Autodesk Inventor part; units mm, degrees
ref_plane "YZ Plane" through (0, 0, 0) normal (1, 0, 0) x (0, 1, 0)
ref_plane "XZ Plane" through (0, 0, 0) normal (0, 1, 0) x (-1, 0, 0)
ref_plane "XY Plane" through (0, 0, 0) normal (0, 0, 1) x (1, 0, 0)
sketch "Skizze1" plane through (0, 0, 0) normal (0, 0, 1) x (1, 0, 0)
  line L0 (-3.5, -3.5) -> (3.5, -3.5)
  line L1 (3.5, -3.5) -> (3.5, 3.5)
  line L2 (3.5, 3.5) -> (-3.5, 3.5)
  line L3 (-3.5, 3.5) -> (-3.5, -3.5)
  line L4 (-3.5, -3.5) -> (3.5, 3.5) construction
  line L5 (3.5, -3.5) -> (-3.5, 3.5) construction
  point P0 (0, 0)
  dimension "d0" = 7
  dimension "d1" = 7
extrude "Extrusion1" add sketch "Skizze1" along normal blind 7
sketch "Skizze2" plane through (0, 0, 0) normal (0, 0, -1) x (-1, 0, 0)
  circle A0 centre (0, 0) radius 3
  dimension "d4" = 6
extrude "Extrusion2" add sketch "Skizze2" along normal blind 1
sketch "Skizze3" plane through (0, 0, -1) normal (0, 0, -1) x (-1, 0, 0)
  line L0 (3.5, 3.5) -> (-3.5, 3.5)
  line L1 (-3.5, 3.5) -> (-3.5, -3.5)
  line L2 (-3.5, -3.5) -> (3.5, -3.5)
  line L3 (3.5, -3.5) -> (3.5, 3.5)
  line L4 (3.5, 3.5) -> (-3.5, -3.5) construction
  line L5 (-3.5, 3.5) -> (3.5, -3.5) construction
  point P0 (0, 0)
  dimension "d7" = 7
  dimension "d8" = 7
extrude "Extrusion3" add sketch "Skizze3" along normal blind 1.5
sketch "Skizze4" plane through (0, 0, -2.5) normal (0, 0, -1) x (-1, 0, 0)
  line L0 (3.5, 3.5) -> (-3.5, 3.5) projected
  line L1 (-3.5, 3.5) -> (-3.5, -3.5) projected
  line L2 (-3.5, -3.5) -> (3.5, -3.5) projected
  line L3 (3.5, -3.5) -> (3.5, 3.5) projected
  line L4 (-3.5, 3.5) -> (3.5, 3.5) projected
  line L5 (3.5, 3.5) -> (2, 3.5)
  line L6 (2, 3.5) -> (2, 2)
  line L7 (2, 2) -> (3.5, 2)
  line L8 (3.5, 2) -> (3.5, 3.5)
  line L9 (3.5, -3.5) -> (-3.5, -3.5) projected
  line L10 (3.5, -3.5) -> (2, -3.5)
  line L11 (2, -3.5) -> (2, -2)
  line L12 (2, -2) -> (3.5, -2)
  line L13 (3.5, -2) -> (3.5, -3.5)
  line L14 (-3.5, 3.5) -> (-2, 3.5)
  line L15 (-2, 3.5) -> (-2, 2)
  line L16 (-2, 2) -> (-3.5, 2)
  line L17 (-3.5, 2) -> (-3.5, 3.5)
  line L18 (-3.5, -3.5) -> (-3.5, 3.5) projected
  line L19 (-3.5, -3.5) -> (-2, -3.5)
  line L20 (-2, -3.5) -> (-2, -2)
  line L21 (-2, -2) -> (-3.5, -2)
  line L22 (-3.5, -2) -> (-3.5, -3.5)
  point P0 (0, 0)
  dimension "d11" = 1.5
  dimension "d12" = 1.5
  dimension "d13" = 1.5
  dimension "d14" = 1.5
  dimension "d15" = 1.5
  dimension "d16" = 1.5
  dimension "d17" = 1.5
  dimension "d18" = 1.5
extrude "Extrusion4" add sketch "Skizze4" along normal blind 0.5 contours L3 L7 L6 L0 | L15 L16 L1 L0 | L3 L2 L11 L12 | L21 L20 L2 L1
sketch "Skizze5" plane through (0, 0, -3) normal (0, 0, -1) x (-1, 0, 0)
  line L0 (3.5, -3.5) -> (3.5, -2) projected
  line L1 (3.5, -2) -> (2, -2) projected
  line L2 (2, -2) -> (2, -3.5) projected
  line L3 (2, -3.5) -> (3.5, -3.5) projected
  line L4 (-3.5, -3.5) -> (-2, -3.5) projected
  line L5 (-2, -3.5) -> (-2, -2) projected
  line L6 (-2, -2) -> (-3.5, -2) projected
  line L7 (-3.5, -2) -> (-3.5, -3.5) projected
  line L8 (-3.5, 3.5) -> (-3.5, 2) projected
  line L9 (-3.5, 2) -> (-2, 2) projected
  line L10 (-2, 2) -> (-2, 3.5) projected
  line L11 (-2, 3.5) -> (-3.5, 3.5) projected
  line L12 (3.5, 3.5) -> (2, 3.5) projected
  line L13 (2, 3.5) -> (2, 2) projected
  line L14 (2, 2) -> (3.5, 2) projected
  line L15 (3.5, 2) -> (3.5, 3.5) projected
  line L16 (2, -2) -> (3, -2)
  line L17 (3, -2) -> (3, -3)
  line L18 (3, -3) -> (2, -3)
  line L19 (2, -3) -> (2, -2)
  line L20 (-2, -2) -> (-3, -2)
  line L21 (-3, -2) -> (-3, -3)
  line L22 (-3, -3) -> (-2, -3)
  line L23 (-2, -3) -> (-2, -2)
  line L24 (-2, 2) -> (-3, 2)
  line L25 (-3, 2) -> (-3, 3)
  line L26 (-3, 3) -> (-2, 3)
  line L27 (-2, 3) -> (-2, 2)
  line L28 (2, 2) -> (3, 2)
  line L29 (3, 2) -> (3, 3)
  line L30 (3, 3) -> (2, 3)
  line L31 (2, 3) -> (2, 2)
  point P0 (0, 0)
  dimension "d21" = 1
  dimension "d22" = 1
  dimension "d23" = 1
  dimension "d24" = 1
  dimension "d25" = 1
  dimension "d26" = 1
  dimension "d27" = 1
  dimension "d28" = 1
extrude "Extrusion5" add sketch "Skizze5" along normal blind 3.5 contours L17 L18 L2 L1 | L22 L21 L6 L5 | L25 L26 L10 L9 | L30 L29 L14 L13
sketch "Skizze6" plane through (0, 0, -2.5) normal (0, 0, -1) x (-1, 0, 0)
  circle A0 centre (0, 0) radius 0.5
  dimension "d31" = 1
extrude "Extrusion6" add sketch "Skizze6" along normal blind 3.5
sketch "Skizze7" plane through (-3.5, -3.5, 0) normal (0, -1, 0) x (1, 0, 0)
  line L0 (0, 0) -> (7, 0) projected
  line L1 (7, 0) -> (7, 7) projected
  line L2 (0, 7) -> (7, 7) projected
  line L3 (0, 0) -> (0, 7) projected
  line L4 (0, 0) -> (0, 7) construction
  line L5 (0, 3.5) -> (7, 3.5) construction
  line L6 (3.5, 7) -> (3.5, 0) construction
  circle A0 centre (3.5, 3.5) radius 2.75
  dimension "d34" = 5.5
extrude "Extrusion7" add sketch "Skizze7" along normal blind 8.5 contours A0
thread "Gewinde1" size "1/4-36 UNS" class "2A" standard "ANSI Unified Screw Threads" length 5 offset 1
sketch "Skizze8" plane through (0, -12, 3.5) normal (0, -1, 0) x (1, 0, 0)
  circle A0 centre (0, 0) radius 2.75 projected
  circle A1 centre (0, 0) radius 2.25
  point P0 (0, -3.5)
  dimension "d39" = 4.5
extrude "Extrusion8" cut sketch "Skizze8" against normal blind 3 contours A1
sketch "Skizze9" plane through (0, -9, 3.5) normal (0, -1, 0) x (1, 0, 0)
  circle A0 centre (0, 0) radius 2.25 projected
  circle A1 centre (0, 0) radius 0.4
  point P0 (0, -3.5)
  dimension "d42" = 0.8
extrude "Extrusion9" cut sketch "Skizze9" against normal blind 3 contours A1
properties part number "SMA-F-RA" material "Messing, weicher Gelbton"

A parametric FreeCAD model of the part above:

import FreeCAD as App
import Part
import Sketcher
from FreeCAD import Vector


def add_polygon(sketch, points):
    """Adds a closed chain of lines whose ends are joined by coincident constraints."""
    first, n = sketch.GeometryCount, len(points)
    for a, b in zip(points, points[1:] + points[:1]):
        sketch.addGeometry(Part.LineSegment(App.Vector(*a, 0), App.Vector(*b, 0)), False)
    for i in range(n):
        sketch.addConstraint(Sketcher.Constraint("Coincident", first + i, 2, first + (i + 1) % n, 1))

doc = App.newDocument("Part")
params = doc.addObject("Spreadsheet::Sheet", "Params")
for row, (alias, value) in enumerate([
    ("sketch1_width", "7 mm"),
    ("pad1_length", "7 mm"),
    ("sketch2_diameter", "6 mm"),
    ("pad2_length", "1 mm"),
    ("sketch3_width", "7 mm"),
    ("pad3_length", "1.5 mm"),
    ("sketch4_width", "1.5 mm"),
    ("pad4_length", "0.5 mm"),
    ("sketch5_width", "1 mm"),
    ("pad5_length", "3.5 mm"),
    ("sketch6_diameter", "1 mm"),
    ("pad6_length", "3.5 mm"),
    ("sketch7_diameter", "5.5 mm"),
    ("pad7_length", "8.5 mm"),
    ("sketch8_diameter", "4.5 mm"),
    ("pocket1_length", "3 mm"),
    ("sketch9_diameter", "0.8 mm"),
    ("pocket2_length", "3 mm"),
], start=1):
    params.set(f"A{row}", alias)
    params.set(f"B{row}", "=" + value)
    params.setAlias(f"B{row}", alias)

body = doc.addObject("PartDesign::Body", "Body")

# Sketch on XY plane
sketch1 = body.newObject("Sketcher::SketchObject", "Sketch")
sketch1.AttachmentSupport = (doc.getObject("XY_Plane"), [""])
sketch1.MapMode = "FlatFace"
add_polygon(sketch1, [(-4, 4), (-4, -4), (4, -4), (4, 4)])  # lines 0-3
sketch1.addConstraint([
    Sketcher.Constraint("Vertical", 0),
    Sketcher.Constraint("Horizontal", 1),
    Sketcher.Constraint("Vertical", 2),
    Sketcher.Constraint("Horizontal", 3),
    Sketcher.Constraint("Symmetric", 0, 2, 2, 2, -1, 1),
    Sketcher.Constraint("Equal", 3, 0),
    Sketcher.Constraint("DistanceX", 1, 1, 1, 2, 7.0),
])
sketch1.setExpression("Constraints[10]", "Params.sketch1_width")
pad1 = body.newObject("PartDesign::Pad", "Pad")
pad1.Profile = sketch1
pad1.setExpression("Length", "Params.pad1_length")

# Sketch on XY plane
sketch2 = body.newObject("Sketcher::SketchObject", "Sketch001")
sketch2.AttachmentSupport = (doc.getObject("XY_Plane"), [""])
sketch2.MapMode = "FlatFace"
sketch2.addGeometry(Part.Circle(Vector(0, 0, 0), Vector(0, 0, 1), 3), False)
sketch2.addConstraint([
    Sketcher.Constraint("Coincident", 0, 3, -1, 1),
    Sketcher.Constraint("Diameter", 0, 6.0),
])
sketch2.setExpression("Constraints[1]", "Params.sketch2_diameter")
pad2 = body.newObject("PartDesign::Pad", "Pad001")
pad2.Profile = sketch2
pad2.setExpression("Length", "Params.pad2_length")
pad2.Reversed = True

# Sketch on XY plane
sketch3 = body.newObject("Sketcher::SketchObject", "Sketch002")
sketch3.AttachmentSupport = (doc.getObject("XY_Plane"), [""])
sketch3.MapMode = "FlatFace"
sketch3.AttachmentOffset = App.Placement(Vector(0, 0, -1), App.Rotation())
add_polygon(sketch3, [(-4, -4), (-4, 4), (4, 4), (4, -4)])  # lines 0-3
sketch3.addConstraint([
    Sketcher.Constraint("Vertical", 0),
    Sketcher.Constraint("Horizontal", 1),
    Sketcher.Constraint("Vertical", 2),
    Sketcher.Constraint("Horizontal", 3),
    Sketcher.Constraint("Symmetric", 0, 2, 2, 2, -1, 1),
    Sketcher.Constraint("Equal", 3, 0),
    Sketcher.Constraint("DistanceX", 1, 1, 1, 2, 7.0),
])
sketch3.setExpression("Constraints[10]", "Params.sketch3_width")
pad3 = body.newObject("PartDesign::Pad", "Pad002")
pad3.Profile = sketch3
pad3.setExpression("Length", "Params.pad3_length")
pad3.Reversed = True

# Sketch on XY plane
sketch4 = body.newObject("Sketcher::SketchObject", "Sketch003")
sketch4.AttachmentSupport = (doc.getObject("XY_Plane"), [""])
sketch4.MapMode = "FlatFace"
sketch4.AttachmentOffset = App.Placement(Vector(0, 0, -2.5), App.Rotation())
add_polygon(sketch4, [(-3.5, 2), (-3.5, 3.5), (-2, 3.5), (-2, 2)])  # lines 0-3
add_polygon(sketch4, [(2, 2), (2, 3.5), (3.5, 3.5), (3.5, 2)])  # lines 4-7
add_polygon(sketch4, [(-3.5, -3.5), (-3.5, -2), (-2, -2), (-2, -3.5)])  # lines 8-11
add_polygon(sketch4, [(2, -2), (3.5, -2), (3.5, -3.5), (2, -3.5)])  # lines 12-15
sketch4.addConstraint([
    Sketcher.Constraint("Vertical", 0),
    Sketcher.Constraint("Horizontal", 1),
    Sketcher.Constraint("Vertical", 2),
    Sketcher.Constraint("Horizontal", 3),
    Sketcher.Constraint("Vertical", 4),
    Sketcher.Constraint("Horizontal", 5),
    Sketcher.Constraint("Vertical", 6),
    Sketcher.Constraint("Horizontal", 7),
    Sketcher.Constraint("Vertical", 8),
    Sketcher.Constraint("Horizontal", 9),
    Sketcher.Constraint("Vertical", 10),
    Sketcher.Constraint("Horizontal", 11),
    Sketcher.Constraint("Horizontal", 12),
    Sketcher.Constraint("Vertical", 13),
    Sketcher.Constraint("Horizontal", 14),
    Sketcher.Constraint("Vertical", 15),
    Sketcher.Constraint("Symmetric", 6, 2, 8, 2, -1, 1),
    Sketcher.Constraint("Symmetric", 4, 2, 10, 2, -1, 1),
    Sketcher.Constraint("Symmetric", 3, 2, 12, 2, -1, 1),
    Sketcher.Constraint("Symmetric", 1, 2, 14, 2, -1, 1),
    Sketcher.Constraint("Symmetric", 1, 2, 4, 2, -2),
    Sketcher.Constraint("Symmetric", 3, 2, 6, 2, -2),
    Sketcher.Constraint("Equal", 14, 0),
    Sketcher.Constraint("DistanceX", 1, 1, 1, 2, 1.5),
    Sketcher.Constraint("DistanceX", 1, 2, -1, 1, 2.0),
    Sketcher.Constraint("DistanceY", -1, 1, 2, 2, 2.0),
])
sketch4.setExpression("Constraints[39]", "Params.sketch4_width")
pad4 = body.newObject("PartDesign::Pad", "Pad003")
pad4.Profile = sketch4
pad4.setExpression("Length", "Params.pad4_length")
pad4.Reversed = True

# Sketch on XY plane
sketch5 = body.newObject("Sketcher::SketchObject", "Sketch004")
sketch5.AttachmentSupport = (doc.getObject("XY_Plane"), [""])
sketch5.MapMode = "FlatFace"
sketch5.AttachmentOffset = App.Placement(Vector(0, 0, -3), App.Rotation())
add_polygon(sketch5, [(-3, -3), (-3, -2), (-2, -2), (-2, -3)])  # lines 0-3
add_polygon(sketch5, [(3, -3), (2, -3), (2, -2), (3, -2)])  # lines 4-7
add_polygon(sketch5, [(3, 3), (3, 2), (2, 2), (2, 3)])  # lines 8-11
add_polygon(sketch5, [(-3, 3), (-2, 3), (-2, 2), (-3, 2)])  # lines 12-15
sketch5.addConstraint([
    Sketcher.Constraint("Vertical", 0),
    Sketcher.Constraint("Horizontal", 1),
    Sketcher.Constraint("Vertical", 2),
    Sketcher.Constraint("Horizontal", 3),
    Sketcher.Constraint("Horizontal", 4),
    Sketcher.Constraint("Vertical", 5),
    Sketcher.Constraint("Horizontal", 6),
    Sketcher.Constraint("Vertical", 7),
    Sketcher.Constraint("Vertical", 8),
    Sketcher.Constraint("Horizontal", 9),
    Sketcher.Constraint("Vertical", 10),
    Sketcher.Constraint("Horizontal", 11),
    Sketcher.Constraint("Horizontal", 12),
    Sketcher.Constraint("Vertical", 13),
    Sketcher.Constraint("Horizontal", 14),
    Sketcher.Constraint("Vertical", 15),
    Sketcher.Constraint("Symmetric", 0, 2, 8, 2, -1, 1),
    Sketcher.Constraint("Symmetric", 2, 2, 10, 2, -1, 1),
    Sketcher.Constraint("Symmetric", 4, 2, 12, 2, -1, 1),
    Sketcher.Constraint("Symmetric", 6, 2, 14, 2, -1, 1),
    Sketcher.Constraint("Symmetric", 2, 2, 4, 2, -2),
    Sketcher.Constraint("Symmetric", 0, 2, 6, 2, -2),
    Sketcher.Constraint("Equal", 14, 0),
    Sketcher.Constraint("DistanceX", 1, 1, 1, 2, 1.0),
    Sketcher.Constraint("DistanceX", 0, 2, -1, 1, 3.0),
    Sketcher.Constraint("DistanceY", 0, 2, -1, 1, 2.0),
])
sketch5.setExpression("Constraints[39]", "Params.sketch5_width")
pad5 = body.newObject("PartDesign::Pad", "Pad004")
pad5.Profile = sketch5
pad5.setExpression("Length", "Params.pad5_length")
pad5.Reversed = True

# Sketch on XY plane
sketch6 = body.newObject("Sketcher::SketchObject", "Sketch005")
sketch6.AttachmentSupport = (doc.getObject("XY_Plane"), [""])
sketch6.MapMode = "FlatFace"
sketch6.AttachmentOffset = App.Placement(Vector(0, 0, -2.5), App.Rotation())
sketch6.addGeometry(Part.Circle(Vector(0, 0, 0), Vector(0, 0, 1), 0.5), False)
sketch6.addConstraint([
    Sketcher.Constraint("Coincident", 0, 3, -1, 1),
    Sketcher.Constraint("Diameter", 0, 1.0),
])
sketch6.setExpression("Constraints[1]", "Params.sketch6_diameter")
pad6 = body.newObject("PartDesign::Pad", "Pad005")
pad6.Profile = sketch6
pad6.setExpression("Length", "Params.pad6_length")
pad6.Reversed = True

# Sketch on XZ plane
sketch7 = body.newObject("Sketcher::SketchObject", "Sketch006")
sketch7.AttachmentSupport = (doc.getObject("XZ_Plane"), [""])
sketch7.MapMode = "FlatFace"
sketch7.AttachmentOffset = App.Placement(Vector(0, 0, 3.5), App.Rotation())
sketch7.addGeometry(Part.Circle(Vector(0, 3.5, 0), Vector(0, 0, 1), 2.8), False)
sketch7.addConstraint([
    Sketcher.Constraint("PointOnObject", 0, 3, -2),
    Sketcher.Constraint("Diameter", 0, 5.5),
    Sketcher.Constraint("DistanceY", -1, 1, 0, 3, 3.5),
])
sketch7.setExpression("Constraints[1]", "Params.sketch7_diameter")
pad7 = body.newObject("PartDesign::Pad", "Pad006")
pad7.Profile = sketch7
pad7.setExpression("Length", "Params.pad7_length")

# Sketch on XZ plane
sketch8 = body.newObject("Sketcher::SketchObject", "Sketch007")
sketch8.AttachmentSupport = (doc.getObject("XZ_Plane"), [""])
sketch8.MapMode = "FlatFace"
sketch8.AttachmentOffset = App.Placement(Vector(0, 0, 12), App.Rotation())
sketch8.addGeometry(Part.Circle(Vector(0, 3.5, 0), Vector(0, 0, 1), 2.2), False)
sketch8.addConstraint([
    Sketcher.Constraint("PointOnObject", 0, 3, -2),
    Sketcher.Constraint("Diameter", 0, 4.5),
    Sketcher.Constraint("DistanceY", -1, 1, 0, 3, 3.5),
])
sketch8.setExpression("Constraints[1]", "Params.sketch8_diameter")
pocket1 = body.newObject("PartDesign::Pocket", "Pocket")
pocket1.Profile = sketch8
pocket1.setExpression("Length", "Params.pocket1_length")

# Sketch on XZ plane
sketch9 = body.newObject("Sketcher::SketchObject", "Sketch008")
sketch9.AttachmentSupport = (doc.getObject("XZ_Plane"), [""])
sketch9.MapMode = "FlatFace"
sketch9.AttachmentOffset = App.Placement(Vector(0, 0, 9), App.Rotation())
sketch9.addGeometry(Part.Circle(Vector(0, 3.5, 0), Vector(0, 0, 1), 0.4), False)
sketch9.addConstraint([
    Sketcher.Constraint("PointOnObject", 0, 3, -2),
    Sketcher.Constraint("Diameter", 0, 0.8),
    Sketcher.Constraint("DistanceY", -1, 1, 0, 3, 3.5),
])
sketch9.setExpression("Constraints[1]", "Params.sketch9_diameter")
pocket2 = body.newObject("PartDesign::Pocket", "Pocket001")
pocket2.Profile = sketch9
pocket2.setExpression("Length", "Params.pocket2_length")

doc.recompute()
